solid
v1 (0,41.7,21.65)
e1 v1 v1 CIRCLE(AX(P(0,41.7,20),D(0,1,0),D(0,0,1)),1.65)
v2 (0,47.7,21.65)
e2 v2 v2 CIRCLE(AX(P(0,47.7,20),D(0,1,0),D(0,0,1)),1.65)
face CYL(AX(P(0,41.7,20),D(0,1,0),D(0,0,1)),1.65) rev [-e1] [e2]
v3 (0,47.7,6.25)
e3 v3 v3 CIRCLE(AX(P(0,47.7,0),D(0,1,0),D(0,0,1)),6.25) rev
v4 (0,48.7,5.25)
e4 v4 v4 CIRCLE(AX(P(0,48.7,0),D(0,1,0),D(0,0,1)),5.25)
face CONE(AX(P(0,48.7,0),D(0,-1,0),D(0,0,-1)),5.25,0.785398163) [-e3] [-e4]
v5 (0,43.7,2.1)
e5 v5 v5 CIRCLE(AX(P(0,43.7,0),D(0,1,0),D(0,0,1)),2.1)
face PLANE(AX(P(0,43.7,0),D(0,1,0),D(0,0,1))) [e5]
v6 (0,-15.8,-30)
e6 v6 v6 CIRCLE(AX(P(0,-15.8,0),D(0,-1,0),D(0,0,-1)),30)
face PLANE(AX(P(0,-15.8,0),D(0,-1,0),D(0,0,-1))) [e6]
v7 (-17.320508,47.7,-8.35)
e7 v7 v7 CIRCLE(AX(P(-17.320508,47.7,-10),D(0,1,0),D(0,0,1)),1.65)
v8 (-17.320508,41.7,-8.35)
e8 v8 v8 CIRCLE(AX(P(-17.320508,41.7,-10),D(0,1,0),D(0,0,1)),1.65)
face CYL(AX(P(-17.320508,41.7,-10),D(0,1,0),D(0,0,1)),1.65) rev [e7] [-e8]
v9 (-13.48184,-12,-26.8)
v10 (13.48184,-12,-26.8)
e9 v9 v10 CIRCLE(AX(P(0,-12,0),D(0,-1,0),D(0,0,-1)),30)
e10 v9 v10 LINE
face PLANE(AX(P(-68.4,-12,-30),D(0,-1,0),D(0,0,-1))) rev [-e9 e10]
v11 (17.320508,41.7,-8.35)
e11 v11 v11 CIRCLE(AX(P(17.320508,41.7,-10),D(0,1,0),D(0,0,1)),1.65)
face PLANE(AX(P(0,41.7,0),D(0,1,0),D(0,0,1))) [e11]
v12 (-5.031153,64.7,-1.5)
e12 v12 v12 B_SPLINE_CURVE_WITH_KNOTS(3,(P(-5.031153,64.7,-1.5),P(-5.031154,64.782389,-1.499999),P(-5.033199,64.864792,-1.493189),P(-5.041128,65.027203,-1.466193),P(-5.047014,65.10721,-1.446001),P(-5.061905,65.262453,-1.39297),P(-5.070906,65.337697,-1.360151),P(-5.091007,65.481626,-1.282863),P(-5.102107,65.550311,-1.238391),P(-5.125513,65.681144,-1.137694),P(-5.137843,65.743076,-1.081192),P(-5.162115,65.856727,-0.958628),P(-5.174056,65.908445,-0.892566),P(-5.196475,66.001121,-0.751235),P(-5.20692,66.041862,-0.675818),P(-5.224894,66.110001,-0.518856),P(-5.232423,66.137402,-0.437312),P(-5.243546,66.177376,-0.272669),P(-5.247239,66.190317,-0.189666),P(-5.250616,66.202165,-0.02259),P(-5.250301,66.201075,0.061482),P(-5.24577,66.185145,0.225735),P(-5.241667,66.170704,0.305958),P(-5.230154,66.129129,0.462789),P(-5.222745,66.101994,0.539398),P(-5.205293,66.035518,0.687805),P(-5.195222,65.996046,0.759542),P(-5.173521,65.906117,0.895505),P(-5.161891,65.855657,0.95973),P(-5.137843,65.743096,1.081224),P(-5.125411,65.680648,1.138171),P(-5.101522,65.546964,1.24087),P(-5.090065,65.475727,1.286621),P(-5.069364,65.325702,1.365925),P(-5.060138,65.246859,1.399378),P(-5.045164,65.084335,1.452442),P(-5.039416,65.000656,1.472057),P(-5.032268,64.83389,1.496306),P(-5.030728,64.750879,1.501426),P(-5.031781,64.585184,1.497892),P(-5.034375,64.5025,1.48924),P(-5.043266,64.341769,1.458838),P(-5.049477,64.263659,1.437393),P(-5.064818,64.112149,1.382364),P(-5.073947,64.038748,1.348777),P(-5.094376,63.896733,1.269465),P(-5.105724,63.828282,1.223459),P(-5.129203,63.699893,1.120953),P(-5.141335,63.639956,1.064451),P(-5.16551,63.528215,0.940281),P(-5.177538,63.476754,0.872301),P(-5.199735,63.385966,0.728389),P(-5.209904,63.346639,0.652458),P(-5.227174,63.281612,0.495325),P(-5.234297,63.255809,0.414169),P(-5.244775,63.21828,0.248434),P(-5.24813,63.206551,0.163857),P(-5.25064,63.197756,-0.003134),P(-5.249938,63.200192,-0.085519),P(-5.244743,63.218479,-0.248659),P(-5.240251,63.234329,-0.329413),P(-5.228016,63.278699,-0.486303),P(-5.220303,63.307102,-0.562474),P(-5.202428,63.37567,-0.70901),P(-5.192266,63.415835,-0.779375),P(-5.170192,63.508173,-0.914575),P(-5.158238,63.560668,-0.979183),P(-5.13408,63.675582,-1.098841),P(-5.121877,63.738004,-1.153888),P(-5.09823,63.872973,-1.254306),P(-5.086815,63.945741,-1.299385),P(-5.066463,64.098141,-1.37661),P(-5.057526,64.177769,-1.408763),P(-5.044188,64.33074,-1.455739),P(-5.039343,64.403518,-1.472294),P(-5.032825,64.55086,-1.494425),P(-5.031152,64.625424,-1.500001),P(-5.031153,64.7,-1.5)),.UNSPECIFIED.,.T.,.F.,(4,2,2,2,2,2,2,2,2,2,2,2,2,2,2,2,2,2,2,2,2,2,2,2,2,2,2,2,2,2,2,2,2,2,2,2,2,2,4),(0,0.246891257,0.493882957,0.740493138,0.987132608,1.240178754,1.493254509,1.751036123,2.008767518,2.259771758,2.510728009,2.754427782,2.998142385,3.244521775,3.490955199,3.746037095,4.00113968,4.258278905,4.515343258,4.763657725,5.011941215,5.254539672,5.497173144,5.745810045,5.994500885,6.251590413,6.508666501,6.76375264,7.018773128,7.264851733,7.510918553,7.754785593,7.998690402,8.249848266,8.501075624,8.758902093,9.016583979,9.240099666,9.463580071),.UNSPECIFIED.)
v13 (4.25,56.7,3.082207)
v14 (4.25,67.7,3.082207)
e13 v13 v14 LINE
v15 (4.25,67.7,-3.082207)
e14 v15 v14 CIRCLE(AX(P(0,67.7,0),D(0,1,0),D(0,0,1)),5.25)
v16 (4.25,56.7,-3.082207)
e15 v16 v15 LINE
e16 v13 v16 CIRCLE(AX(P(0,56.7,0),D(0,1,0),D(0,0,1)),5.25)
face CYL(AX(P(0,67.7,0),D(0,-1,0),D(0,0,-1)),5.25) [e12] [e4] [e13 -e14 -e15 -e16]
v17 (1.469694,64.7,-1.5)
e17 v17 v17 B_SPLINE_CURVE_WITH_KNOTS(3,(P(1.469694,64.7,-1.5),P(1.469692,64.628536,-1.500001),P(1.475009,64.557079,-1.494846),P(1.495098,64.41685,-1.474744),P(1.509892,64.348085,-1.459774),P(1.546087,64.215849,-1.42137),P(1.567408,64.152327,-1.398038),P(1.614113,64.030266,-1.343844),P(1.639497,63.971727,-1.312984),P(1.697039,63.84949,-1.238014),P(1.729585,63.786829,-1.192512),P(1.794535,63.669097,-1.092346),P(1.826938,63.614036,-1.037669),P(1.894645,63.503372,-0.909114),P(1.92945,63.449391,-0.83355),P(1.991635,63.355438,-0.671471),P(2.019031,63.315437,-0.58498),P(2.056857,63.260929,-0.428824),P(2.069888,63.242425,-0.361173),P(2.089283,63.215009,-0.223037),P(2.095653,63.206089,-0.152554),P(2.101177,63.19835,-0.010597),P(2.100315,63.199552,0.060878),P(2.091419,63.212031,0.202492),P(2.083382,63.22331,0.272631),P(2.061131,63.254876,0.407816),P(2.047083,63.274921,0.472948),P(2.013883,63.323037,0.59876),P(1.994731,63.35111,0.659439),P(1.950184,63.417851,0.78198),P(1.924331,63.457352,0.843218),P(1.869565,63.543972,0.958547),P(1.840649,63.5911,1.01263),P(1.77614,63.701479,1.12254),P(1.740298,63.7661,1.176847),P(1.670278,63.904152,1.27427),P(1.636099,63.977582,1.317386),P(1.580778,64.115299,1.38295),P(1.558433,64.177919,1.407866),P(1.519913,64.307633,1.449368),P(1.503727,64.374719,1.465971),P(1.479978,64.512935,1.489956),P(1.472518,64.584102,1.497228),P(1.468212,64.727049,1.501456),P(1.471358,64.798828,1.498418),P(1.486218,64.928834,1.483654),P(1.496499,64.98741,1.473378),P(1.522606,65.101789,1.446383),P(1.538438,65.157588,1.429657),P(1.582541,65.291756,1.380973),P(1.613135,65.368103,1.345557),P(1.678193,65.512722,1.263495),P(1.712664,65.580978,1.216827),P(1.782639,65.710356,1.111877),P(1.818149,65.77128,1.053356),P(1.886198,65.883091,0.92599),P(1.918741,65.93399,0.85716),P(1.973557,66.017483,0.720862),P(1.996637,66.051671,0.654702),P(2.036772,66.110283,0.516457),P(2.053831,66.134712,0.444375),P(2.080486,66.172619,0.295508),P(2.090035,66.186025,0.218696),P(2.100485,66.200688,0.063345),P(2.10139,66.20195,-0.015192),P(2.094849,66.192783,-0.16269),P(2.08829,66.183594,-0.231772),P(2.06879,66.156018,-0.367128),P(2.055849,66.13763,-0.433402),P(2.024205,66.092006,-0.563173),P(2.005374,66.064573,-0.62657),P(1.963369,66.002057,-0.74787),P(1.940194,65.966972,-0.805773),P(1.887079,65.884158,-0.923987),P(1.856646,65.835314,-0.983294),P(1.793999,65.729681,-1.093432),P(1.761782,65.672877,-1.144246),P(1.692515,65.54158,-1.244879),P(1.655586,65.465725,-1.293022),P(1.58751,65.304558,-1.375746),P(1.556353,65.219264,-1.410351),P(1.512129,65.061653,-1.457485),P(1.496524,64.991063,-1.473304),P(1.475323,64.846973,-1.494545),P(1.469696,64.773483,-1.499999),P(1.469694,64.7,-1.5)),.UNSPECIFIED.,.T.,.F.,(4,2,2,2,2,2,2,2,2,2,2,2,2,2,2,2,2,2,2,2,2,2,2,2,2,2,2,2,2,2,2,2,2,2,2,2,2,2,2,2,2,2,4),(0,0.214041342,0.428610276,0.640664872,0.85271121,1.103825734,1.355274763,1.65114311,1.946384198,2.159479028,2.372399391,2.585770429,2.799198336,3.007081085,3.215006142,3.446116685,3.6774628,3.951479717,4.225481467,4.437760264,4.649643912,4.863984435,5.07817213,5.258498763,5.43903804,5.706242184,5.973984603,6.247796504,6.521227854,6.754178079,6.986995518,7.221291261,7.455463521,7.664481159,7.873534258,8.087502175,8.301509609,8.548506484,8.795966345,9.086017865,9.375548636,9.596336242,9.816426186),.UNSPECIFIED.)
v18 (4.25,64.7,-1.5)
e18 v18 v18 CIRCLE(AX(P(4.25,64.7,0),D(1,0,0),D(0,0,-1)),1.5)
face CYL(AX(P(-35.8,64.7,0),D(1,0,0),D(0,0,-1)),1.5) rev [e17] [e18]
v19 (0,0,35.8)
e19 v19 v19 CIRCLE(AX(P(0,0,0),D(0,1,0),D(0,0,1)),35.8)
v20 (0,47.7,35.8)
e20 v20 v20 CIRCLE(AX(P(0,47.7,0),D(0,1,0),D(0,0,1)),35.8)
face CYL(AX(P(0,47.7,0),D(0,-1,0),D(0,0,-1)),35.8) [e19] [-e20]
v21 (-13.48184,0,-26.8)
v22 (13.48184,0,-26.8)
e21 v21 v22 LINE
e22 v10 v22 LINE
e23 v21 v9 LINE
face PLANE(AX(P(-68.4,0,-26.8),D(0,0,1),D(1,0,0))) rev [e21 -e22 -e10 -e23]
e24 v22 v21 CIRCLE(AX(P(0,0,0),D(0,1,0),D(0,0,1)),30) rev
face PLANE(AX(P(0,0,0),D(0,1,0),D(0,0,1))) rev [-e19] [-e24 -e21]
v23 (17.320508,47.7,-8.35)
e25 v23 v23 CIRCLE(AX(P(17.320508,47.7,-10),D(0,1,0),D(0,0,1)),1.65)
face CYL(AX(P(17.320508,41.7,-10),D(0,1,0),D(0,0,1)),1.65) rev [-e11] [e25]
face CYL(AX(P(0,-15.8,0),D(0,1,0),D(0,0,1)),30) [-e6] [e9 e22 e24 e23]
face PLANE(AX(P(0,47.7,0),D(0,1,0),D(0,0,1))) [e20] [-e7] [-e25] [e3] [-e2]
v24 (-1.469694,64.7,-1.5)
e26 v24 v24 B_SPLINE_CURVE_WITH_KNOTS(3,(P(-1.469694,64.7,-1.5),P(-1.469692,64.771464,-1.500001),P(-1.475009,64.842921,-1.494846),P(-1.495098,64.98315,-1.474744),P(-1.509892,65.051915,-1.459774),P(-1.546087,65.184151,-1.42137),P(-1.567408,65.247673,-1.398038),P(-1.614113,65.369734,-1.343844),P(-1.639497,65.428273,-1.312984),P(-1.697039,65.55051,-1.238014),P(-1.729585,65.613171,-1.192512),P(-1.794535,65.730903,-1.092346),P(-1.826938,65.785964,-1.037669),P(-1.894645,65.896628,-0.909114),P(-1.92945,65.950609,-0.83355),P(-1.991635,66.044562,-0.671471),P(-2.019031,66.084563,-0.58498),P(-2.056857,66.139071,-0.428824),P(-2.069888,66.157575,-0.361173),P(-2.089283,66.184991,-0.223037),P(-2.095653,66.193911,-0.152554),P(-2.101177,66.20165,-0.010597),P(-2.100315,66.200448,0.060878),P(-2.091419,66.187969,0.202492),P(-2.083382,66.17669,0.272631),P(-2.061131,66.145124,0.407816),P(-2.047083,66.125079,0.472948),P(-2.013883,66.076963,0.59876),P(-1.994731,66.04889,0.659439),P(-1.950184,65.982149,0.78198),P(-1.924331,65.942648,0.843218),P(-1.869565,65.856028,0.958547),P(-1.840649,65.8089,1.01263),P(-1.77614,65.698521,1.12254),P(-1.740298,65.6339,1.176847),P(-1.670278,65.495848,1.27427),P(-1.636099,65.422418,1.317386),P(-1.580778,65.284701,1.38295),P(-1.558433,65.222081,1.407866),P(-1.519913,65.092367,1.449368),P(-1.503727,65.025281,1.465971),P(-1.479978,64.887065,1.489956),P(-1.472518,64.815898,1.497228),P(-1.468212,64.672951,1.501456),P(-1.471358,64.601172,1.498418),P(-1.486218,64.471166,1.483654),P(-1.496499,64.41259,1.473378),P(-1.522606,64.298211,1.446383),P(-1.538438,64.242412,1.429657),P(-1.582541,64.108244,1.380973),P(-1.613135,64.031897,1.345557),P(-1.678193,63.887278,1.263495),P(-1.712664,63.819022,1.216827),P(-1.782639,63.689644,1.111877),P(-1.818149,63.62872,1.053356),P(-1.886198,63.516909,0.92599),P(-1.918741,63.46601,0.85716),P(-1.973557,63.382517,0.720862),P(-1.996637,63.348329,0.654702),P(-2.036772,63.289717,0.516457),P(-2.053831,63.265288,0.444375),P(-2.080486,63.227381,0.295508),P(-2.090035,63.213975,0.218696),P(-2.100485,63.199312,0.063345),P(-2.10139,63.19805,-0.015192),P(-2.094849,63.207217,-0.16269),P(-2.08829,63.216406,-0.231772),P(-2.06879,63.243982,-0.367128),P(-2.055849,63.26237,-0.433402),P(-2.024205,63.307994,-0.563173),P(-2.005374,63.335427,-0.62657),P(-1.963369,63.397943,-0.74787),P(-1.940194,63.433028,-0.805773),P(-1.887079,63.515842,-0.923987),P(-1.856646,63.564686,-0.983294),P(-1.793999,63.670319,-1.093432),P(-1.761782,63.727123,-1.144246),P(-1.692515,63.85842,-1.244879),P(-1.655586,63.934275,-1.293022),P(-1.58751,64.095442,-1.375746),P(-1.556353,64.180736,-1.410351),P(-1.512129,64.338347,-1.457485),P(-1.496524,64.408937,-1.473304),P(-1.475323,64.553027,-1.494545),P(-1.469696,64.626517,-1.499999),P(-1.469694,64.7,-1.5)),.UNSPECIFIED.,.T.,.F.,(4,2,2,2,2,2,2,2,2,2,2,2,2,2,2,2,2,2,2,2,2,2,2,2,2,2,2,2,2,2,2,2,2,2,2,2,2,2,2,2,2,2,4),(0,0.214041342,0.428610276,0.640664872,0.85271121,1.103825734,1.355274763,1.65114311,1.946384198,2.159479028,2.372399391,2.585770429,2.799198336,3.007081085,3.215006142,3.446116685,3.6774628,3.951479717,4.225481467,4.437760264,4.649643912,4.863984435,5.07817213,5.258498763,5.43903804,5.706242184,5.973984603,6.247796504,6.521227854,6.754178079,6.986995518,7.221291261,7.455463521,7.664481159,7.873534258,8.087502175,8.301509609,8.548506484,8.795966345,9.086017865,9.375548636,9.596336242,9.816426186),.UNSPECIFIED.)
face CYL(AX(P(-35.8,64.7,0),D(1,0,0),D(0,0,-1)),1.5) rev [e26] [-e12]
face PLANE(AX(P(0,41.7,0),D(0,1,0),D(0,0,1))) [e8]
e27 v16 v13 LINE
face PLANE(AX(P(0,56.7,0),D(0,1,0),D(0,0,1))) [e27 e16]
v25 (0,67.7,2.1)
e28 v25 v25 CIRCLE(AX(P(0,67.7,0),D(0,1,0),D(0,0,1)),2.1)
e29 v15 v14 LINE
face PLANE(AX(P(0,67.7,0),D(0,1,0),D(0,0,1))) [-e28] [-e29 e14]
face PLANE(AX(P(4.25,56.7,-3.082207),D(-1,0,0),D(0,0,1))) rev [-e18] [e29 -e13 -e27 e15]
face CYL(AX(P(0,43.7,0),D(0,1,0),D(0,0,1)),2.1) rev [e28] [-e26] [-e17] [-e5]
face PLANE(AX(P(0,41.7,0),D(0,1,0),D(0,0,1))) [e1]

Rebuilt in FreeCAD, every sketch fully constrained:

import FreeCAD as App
import Part
import Sketcher
from FreeCAD import Vector


def edges_at(feature, points):
    """Names of the edges that pass closest to the given points."""
    edges = feature.Shape.Edges
    near = lambda p: min(range(len(edges)), key=lambda i: edges[i].distToShape(Part.Vertex(*p))[0])
    return sorted({f"Edge{near(p) + 1}" for p in points})


def add_polygon(sketch, points):
    """Adds a closed chain of lines whose ends are joined by coincident constraints."""
    first, n = sketch.GeometryCount, len(points)
    for a, b in zip(points, points[1:] + points[:1]):
        sketch.addGeometry(Part.LineSegment(App.Vector(*a, 0), App.Vector(*b, 0)), False)
    for i in range(n):
        sketch.addConstraint(Sketcher.Constraint("Coincident", first + i, 2, first + (i + 1) % n, 1))

doc = App.newDocument("Part")
body = doc.addObject("PartDesign::Body", "Body")

# Sketch on XZ plane
sketch1 = body.newObject("Sketcher::SketchObject", "Sketch")
sketch1.AttachmentSupport = (doc.getObject("XZ_Plane"), [""])
sketch1.MapMode = "FlatFace"
sketch1.addGeometry(Part.Circle(Vector(0, 0, 0), Vector(0, 0, 1), 35.8), False)
sketch1.addConstraint([
    Sketcher.Constraint("Coincident", 0, 3, -1, 1),
    Sketcher.Constraint("Diameter", 0, 71.6),
])
pad1 = body.newObject("PartDesign::Pad", "Pad")
pad1.Profile = sketch1
pad1.Length = 47.7
pad1.Reversed = True

# Sketch on XZ plane
sketch2 = body.newObject("Sketcher::SketchObject", "Sketch001")
sketch2.AttachmentSupport = (doc.getObject("XZ_Plane"), [""])
sketch2.MapMode = "FlatFace"
sketch2.AttachmentOffset = App.Placement(Vector(0, 0, -47.7), App.Rotation())
sketch2.addGeometry(Part.Circle(Vector(0, 0, 0), Vector(0, 0, 1), 5.25), False)
sketch2.addConstraint([
    Sketcher.Constraint("Coincident", 0, 3, -1, 1),
    Sketcher.Constraint("Diameter", 0, 10.5),
])
pad2 = body.newObject("PartDesign::Pad", "Pad001")
pad2.Profile = sketch2
pad2.Length = 20
pad2.Reversed = True

# Sketch on XZ plane
sketch3 = body.newObject("Sketcher::SketchObject", "Sketch002")
sketch3.AttachmentSupport = (doc.getObject("XZ_Plane"), [""])
sketch3.MapMode = "FlatFace"
sketch3.AttachmentOffset = App.Placement(Vector(0, 0, -67.7), App.Rotation())
add_polygon(sketch3, [(4.25, -3.082207), (4.25, 3.082207), (11.388794, 3.082207), (11.388794, -3.082207)])  # lines 0-3
sketch3.addConstraint([
    Sketcher.Constraint("Vertical", 0),
    Sketcher.Constraint("Horizontal", 1),
    Sketcher.Constraint("Vertical", 2),
    Sketcher.Constraint("Horizontal", 3),
    Sketcher.Constraint("DistanceX", -1, 1, 0, 2, 4.25),
    Sketcher.Constraint("DistanceX", 1, 1, 1, 2, 7.138794),
    Sketcher.Constraint("DistanceY", 0, 1, 0, 2, 6.164414),
    Sketcher.Constraint("DistanceY", -1, 1, 0, 2, 3.082207),
])
pocket1 = body.newObject("PartDesign::Pocket", "Pocket")
pocket1.Profile = sketch3
pocket1.Length = 11
pocket1.Reversed = True

# Sketch on YZ plane
sketch4 = body.newObject("Sketcher::SketchObject", "Sketch003")
sketch4.AttachmentSupport = (doc.getObject("YZ_Plane"), [""])
sketch4.MapMode = "FlatFace"
sketch4.AttachmentOffset = App.Placement(Vector(0, 0, 4.25), App.Rotation())
sketch4.addGeometry(Part.Circle(Vector(64.7, 0, 0), Vector(0, 0, 1), 1.5), False)
sketch4.addConstraint([
    Sketcher.Constraint("PointOnObject", 0, 3, -1),
    Sketcher.Constraint("Diameter", 0, 3.0),
    Sketcher.Constraint("DistanceX", -1, 1, 0, 3, 64.7),
])
pocket2 = body.newObject("PartDesign::Pocket", "Pocket001")
pocket2.Profile = sketch4
pocket2.Type = "ThroughAll"
doc.recompute()

chamfer = body.newObject("PartDesign::Chamfer", "Chamfer")
chamfer.Base = (pocket2, edges_at(pocket2, [(0, 47.7, -5.25)]))
chamfer.Size = 1

# Sketch on XZ plane
sketch5 = body.newObject("Sketcher::SketchObject", "Sketch004")
sketch5.AttachmentSupport = (doc.getObject("XZ_Plane"), [""])
sketch5.MapMode = "FlatFace"
sketch5.AttachmentOffset = App.Placement(Vector(0, 0, -47.7), App.Rotation())
sketch5.addGeometry([
    Part.Circle(Vector(0, 20, 0), Vector(0, 0, 1), 1.65),
    Part.Circle(Vector(-17.320508, -10, 0), Vector(0, 0, 1), 1.65),
    Part.Circle(Vector(17.320508, -10, 0), Vector(0, 0, 1), 1.65),
], False)
sketch5.addConstraint([
    Sketcher.Constraint("Equal", 0, 1),
    Sketcher.Constraint("Equal", 1, 2),
    Sketcher.Constraint("Symmetric", 1, 3, 2, 3, -2),
    Sketcher.Constraint("PointOnObject", 0, 3, -2),
    Sketcher.Constraint("Diameter", 0, 3.3),
    Sketcher.Constraint("DistanceY", -1, 1, 0, 3, 20.0),
    Sketcher.Constraint("DistanceY", 1, 3, -1, 1, 10.0),
    Sketcher.Constraint("DistanceX", 1, 3, -1, 1, 17.320508),
])
pocket3 = body.newObject("PartDesign::Pocket", "Pocket002")
pocket3.Profile = sketch5
pocket3.Length = 6
pocket3.Reversed = True

# Sketch on XZ plane
sketch6 = body.newObject("Sketcher::SketchObject", "Sketch005")
sketch6.AttachmentSupport = (doc.getObject("XZ_Plane"), [""])
sketch6.MapMode = "FlatFace"
sketch6.AttachmentOffset = App.Placement(Vector(0, 0, -67.7), App.Rotation())
sketch6.addGeometry(Part.Circle(Vector(0, 0, 0), Vector(0, 0, 1), 2.1), False)
sketch6.addConstraint([
    Sketcher.Constraint("Coincident", 0, 3, -1, 1),
    Sketcher.Constraint("Diameter", 0, 4.2),
])
pocket4 = body.newObject("PartDesign::Pocket", "Pocket003")
pocket4.Profile = sketch6
pocket4.Length = 24
pocket4.Reversed = True

# Sketch on XZ plane
sketch7 = body.newObject("Sketcher::SketchObject", "Sketch006")
sketch7.AttachmentSupport = (doc.getObject("XZ_Plane"), [""])
sketch7.MapMode = "FlatFace"
sketch7.addGeometry(Part.Circle(Vector(0, 0, 0), Vector(0, 0, 1), 30), False)
sketch7.addConstraint([
    Sketcher.Constraint("Coincident", 0, 3, -1, 1),
    Sketcher.Constraint("Diameter", 0, 60.0),
])
pad3 = body.newObject("PartDesign::Pad", "Pad002")
pad3.Profile = sketch7
pad3.Length = 15.8

# Sketch on YZ plane
sketch8 = body.newObject("Sketcher::SketchObject", "Sketch007")
sketch8.AttachmentSupport = (doc.getObject("YZ_Plane"), [""])
sketch8.MapMode = "FlatFace"
add_polygon(sketch8, [(0, -26.8), (-12, -26.8), (-12, -30), (0, -30)])  # lines 0-3
sketch8.addConstraint([
    Sketcher.Constraint("Horizontal", 0),
    Sketcher.Constraint("Vertical", 1),
    Sketcher.Constraint("Horizontal", 2),
    Sketcher.Constraint("Vertical", 3),
    Sketcher.Constraint("PointOnObject", 2, 2, -2),
    Sketcher.Constraint("DistanceX", 0, 2, 0, 1, 12.0),
    Sketcher.Constraint("DistanceY", 1, 2, 1, 1, 3.2),
    Sketcher.Constraint("DistanceY", 1, 2, -1, 1, 30.0),
])
pocket5 = body.newObject("PartDesign::Pocket", "Pocket004")
pocket5.Profile = sketch8
pocket5.Length = 136.8
pocket5.Midplane = True

doc.recompute()
